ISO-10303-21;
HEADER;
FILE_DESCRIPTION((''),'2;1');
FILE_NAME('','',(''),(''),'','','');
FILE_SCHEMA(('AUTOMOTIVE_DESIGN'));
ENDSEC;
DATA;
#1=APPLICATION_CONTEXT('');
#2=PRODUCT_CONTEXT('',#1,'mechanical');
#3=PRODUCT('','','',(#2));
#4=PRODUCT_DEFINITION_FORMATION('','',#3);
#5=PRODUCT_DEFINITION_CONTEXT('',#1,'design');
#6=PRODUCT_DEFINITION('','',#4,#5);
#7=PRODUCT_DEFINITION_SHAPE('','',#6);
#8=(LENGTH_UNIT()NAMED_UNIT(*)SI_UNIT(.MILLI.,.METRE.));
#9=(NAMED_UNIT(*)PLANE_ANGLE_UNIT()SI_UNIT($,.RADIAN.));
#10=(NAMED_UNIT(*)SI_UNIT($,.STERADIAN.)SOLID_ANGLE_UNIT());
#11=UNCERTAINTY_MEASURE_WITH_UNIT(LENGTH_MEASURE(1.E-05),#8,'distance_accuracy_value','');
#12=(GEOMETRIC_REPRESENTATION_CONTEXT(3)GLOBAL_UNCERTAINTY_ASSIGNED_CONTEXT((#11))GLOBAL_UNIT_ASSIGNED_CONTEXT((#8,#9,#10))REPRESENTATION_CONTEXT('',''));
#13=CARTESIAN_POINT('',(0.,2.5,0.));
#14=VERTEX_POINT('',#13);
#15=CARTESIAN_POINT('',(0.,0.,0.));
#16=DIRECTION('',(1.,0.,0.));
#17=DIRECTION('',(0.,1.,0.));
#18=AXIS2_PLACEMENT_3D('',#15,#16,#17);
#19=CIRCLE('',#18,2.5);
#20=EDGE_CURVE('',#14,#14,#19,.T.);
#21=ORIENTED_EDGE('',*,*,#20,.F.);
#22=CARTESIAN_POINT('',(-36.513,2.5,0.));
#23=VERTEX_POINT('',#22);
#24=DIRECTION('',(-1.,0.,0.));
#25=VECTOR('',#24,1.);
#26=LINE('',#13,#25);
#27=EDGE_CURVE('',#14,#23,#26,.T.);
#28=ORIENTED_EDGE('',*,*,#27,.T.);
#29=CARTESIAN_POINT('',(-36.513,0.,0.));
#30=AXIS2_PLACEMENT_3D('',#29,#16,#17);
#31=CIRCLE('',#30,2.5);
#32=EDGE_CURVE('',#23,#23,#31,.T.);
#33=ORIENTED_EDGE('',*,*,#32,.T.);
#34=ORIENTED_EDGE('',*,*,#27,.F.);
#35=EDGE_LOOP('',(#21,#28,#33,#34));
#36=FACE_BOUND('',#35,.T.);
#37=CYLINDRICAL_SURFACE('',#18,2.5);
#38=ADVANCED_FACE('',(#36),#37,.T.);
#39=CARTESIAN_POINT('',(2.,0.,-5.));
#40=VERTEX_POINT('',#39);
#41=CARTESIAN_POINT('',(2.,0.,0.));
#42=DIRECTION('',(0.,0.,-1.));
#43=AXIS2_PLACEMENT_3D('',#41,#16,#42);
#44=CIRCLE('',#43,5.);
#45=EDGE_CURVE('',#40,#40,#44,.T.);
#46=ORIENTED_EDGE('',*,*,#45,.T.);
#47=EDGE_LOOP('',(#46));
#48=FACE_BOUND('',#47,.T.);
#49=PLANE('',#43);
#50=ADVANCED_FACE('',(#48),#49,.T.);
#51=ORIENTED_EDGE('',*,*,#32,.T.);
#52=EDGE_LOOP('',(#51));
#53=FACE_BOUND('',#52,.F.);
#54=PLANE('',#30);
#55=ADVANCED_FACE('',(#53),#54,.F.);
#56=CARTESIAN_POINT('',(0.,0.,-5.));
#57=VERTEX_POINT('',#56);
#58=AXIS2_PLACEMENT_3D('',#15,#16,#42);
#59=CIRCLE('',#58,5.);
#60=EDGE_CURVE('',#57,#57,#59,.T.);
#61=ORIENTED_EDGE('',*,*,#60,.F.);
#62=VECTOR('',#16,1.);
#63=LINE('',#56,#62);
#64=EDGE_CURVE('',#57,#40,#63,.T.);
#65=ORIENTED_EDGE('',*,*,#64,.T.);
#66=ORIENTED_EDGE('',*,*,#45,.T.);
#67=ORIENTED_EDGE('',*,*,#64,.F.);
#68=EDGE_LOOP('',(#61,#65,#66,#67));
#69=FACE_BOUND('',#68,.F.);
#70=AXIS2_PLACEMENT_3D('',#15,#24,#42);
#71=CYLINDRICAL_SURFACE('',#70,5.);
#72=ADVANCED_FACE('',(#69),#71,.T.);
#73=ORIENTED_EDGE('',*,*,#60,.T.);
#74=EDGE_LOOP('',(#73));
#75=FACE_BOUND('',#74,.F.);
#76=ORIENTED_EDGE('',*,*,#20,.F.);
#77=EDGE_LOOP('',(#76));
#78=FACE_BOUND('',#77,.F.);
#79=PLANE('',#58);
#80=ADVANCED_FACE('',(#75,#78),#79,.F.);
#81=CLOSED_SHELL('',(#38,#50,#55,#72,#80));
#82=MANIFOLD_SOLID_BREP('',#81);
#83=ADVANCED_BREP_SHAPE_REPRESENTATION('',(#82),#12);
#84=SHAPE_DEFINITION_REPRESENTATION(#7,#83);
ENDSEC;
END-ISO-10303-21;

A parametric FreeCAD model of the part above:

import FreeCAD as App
import Part
import Sketcher
Q = App.Units.Quantity

doc = App.newDocument("Part")
body = doc.addObject("PartDesign::Body", "Body")

# Sketch on YZ plane
sketch1 = body.newObject("Sketcher::SketchObject", "Sketch")
sketch1.AttachmentSupport = (doc.getObject("YZ_Plane"), [""])
sketch1.MapMode = "FlatFace"
sketch1.addGeometry(Part.Circle(App.Vector(0, 0, 0), App.Vector(0, 0, 1), 2.5), False)
sketch1.addConstraint(Sketcher.Constraint("Coincident", 0, 3, -1, 1))
sketch1.addConstraint(Sketcher.Constraint("Diameter", 0, Q("5 mm")))
pad1 = body.newObject("PartDesign::Pad", "Pad")
pad1.Profile = sketch1
pad1.Length = 36.513
pad1.Reversed = True

# Sketch on YZ plane
sketch2 = body.newObject("Sketcher::SketchObject", "Sketch001")
sketch2.AttachmentSupport = (doc.getObject("YZ_Plane"), [""])
sketch2.MapMode = "FlatFace"
sketch2.addGeometry(Part.Circle(App.Vector(0, 0, 0), App.Vector(0, 0, 1), 5), False)
sketch2.addConstraint(Sketcher.Constraint("Coincident", 0, 3, -1, 1))
sketch2.addConstraint(Sketcher.Constraint("Diameter", 0, Q("10 mm")))
pad2 = body.newObject("PartDesign::Pad", "Pad001")
pad2.Profile = sketch2
pad2.Length = 2

doc.recompute()
